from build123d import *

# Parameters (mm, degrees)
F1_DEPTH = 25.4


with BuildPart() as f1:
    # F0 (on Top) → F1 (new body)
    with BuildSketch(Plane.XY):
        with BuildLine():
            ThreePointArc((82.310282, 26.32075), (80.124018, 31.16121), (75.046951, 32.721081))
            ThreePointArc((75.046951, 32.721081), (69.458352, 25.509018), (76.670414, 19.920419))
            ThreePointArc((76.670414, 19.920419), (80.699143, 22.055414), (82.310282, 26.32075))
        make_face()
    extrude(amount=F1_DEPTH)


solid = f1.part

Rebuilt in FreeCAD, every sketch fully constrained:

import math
import FreeCAD as App
import Part
import Sketcher
Q = App.Units.Quantity

doc = App.newDocument("Part")
params = doc.addObject("Spreadsheet::Sheet", "Params")
for row, (alias, value) in enumerate([
    ("sketch1_radius", "0.254 in"),
    ("pad1_length", "1 in"),
], start=1):
    params.set(f"A{row}", alias)
    params.set(f"B{row}", "=" + value)
    params.setAlias(f"B{row}", alias)

body = doc.addObject("PartDesign::Body", "Body")

# Sketch on XY plane
sketch1 = body.newObject("Sketcher::SketchObject", "Sketch")
sketch1.AttachmentSupport = (doc.getObject("XY_Plane"), [""])
sketch1.MapMode = "FlatFace"
sketch1.addGeometry([
    Part.ArcOfCircle(Part.Circle(App.Vector(76, 26, 0), App.Vector(0, 0, 1), 6), math.radians(0), math.radians(97)),
    Part.ArcOfCircle(Part.Circle(App.Vector(76, 26, 0), App.Vector(0, 0, 1), 6), math.radians(97), math.radians(277)),
    Part.ArcOfCircle(Part.Circle(App.Vector(76, 26, 0), App.Vector(0, 0, 1), 6), math.radians(-83), math.radians(0)),
], False)
sketch1.addConstraint([
    Sketcher.Constraint("Tangent", 0, 2, 1, 1),
    Sketcher.Constraint("Tangent", 1, 2, 2, 1),
    Sketcher.Constraint("Tangent", 2, 2, 0, 1),
    Sketcher.Constraint("Horizontal", 1, 3, 2, 2),
    Sketcher.Constraint("Radius", 0, Q("0.254 in")),
    Sketcher.Constraint("DistanceY", -1, 1, 0, 3, Q("26.32075 mm")),
    Sketcher.Constraint("DistanceX", -1, 1, 0, 2, Q("75.046951 mm")),
    Sketcher.Constraint("DistanceY", -1, 1, 0, 2, Q("32.721081 mm")),
    Sketcher.Constraint("DistanceY", -1, 1, 1, 2, Q("19.920419 mm")),
])
sketch1.setExpression("Constraints[4]", "Params.sketch1_radius")
pad1 = body.newObject("PartDesign::Pad", "Pad")
pad1.Profile = sketch1
pad1.setExpression("Length", "Params.pad1_length")

doc.recompute()
